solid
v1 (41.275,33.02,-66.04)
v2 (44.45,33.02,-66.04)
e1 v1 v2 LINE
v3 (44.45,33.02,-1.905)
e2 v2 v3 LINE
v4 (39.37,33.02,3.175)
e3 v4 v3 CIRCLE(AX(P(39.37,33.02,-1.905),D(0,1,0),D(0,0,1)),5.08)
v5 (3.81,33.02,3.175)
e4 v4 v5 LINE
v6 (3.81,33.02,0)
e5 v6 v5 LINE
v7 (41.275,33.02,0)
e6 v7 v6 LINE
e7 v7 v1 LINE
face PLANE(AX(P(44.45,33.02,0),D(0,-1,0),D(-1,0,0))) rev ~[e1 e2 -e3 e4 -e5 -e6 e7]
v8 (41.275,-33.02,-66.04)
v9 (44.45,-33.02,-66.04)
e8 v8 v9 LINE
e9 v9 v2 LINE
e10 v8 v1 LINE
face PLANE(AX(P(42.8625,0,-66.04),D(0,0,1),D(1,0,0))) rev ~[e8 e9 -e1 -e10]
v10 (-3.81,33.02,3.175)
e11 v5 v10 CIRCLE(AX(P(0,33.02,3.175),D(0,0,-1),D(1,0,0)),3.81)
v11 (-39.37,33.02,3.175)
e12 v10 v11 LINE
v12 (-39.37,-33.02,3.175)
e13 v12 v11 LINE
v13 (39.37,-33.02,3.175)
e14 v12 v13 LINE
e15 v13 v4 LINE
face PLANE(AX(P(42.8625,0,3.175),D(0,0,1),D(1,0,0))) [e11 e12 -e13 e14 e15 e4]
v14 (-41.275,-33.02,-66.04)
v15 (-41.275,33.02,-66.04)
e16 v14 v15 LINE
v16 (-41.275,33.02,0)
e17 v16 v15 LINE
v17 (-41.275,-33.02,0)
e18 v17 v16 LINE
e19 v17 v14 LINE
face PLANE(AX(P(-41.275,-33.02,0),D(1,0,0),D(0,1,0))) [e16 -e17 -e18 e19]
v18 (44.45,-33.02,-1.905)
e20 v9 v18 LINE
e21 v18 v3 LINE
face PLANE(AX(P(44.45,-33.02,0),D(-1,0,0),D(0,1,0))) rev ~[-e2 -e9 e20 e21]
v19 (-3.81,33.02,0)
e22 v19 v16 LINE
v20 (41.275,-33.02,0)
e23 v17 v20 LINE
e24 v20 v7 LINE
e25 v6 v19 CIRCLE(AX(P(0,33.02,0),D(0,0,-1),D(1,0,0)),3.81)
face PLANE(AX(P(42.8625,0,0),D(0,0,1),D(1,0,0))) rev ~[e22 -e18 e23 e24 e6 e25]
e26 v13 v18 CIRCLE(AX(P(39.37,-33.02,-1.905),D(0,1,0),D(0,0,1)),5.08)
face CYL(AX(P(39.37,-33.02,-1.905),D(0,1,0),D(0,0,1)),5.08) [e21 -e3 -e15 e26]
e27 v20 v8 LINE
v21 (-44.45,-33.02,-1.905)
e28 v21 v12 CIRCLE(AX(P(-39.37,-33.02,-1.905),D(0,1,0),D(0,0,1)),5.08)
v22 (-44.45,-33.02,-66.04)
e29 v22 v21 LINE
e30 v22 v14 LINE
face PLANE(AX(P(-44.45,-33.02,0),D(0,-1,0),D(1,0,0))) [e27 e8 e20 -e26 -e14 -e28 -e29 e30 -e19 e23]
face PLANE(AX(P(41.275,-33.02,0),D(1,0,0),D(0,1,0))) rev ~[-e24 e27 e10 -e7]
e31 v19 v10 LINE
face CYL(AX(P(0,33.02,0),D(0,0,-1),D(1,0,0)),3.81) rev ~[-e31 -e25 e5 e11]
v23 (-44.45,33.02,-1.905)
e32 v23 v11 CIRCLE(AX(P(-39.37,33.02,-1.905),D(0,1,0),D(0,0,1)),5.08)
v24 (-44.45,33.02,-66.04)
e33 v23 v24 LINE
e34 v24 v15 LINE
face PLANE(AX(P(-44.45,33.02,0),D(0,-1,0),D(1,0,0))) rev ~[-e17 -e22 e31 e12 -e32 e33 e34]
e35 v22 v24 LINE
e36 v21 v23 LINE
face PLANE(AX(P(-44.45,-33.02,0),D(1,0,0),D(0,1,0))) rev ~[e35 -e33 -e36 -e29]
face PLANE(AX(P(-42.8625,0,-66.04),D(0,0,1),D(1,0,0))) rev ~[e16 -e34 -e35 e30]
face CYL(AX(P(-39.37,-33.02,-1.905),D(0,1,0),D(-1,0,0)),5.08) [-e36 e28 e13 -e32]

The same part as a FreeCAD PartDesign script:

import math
import FreeCAD as App
import Part
import Sketcher
from FreeCAD import Vector
Q = App.Units.Quantity


def edges_at(feature, points):
    """Names of the edges that pass closest to the given points."""
    edges = feature.Shape.Edges
    near = lambda p: min(range(len(edges)), key=lambda i: edges[i].distToShape(Part.Vertex(*p))[0])
    return sorted({f"Edge{near(p) + 1}" for p in points})

doc = App.newDocument("Part")
body = doc.addObject("PartDesign::Body", "Body")

sketch1 = doc.addObject("Sketcher::SketchObject", "Sketch")
body.addObject(sketch1)
sketch1.AttachmentSupport = (doc.XY_Plane, [""])
sketch1.MapMode = "FlatFace"
sketch1.addGeometry([
    Part.LineSegment(Vector(44.5, -33, 0), Vector(44.5, 33, 0)),
    Part.LineSegment(Vector(44.5, 33, 0), Vector(3.8, 33, 0)),
    Part.ArcOfCircle(Part.Circle(Vector(0, 33, 0), Vector(0, 0, 1), 3.8), math.radians(180), math.radians(360)),
    Part.LineSegment(Vector(-3.8, 33, 0), Vector(-44.5, 33, 0)),
    Part.LineSegment(Vector(-44.5, 33, 0), Vector(-44.5, -33, 0)),
    Part.LineSegment(Vector(-44.5, -33, 0), Vector(44.5, -33, 0)),
], False)
sketch1.addConstraint([
    Sketcher.Constraint("Coincident", 0, 2, 1, 1),
    Sketcher.Constraint("Coincident", 1, 2, 2, 2),
    Sketcher.Constraint("Coincident", 2, 1, 3, 1),
    Sketcher.Constraint("Coincident", 3, 2, 4, 1),
    Sketcher.Constraint("Coincident", 4, 2, 5, 1),
    Sketcher.Constraint("Coincident", 5, 2, 0, 1),
    Sketcher.Constraint("Vertical", 0),
    Sketcher.Constraint("Horizontal", 1),
    Sketcher.Constraint("Horizontal", 3),
    Sketcher.Constraint("Vertical", 4),
    Sketcher.Constraint("Horizontal", 5),
    Sketcher.Constraint("Symmetric", 0, 2, 4, 2, -1, 1),
    Sketcher.Constraint("Symmetric", 1, 2, 2, 1, -2),
    Sketcher.Constraint("Horizontal", 2, 3, 0, 2),
    Sketcher.Constraint("Radius", 2, Q("0.15 in")),
    Sketcher.Constraint("DistanceX", 1, 2, 1, 1, Q("1.6 in")),
    Sketcher.Constraint("DistanceY", 0, 1, 0, 2, Q("2.6 in")),
])
pad1 = doc.addObject("PartDesign::Pad", "Pad")
body.addObject(pad1)
pad1.Profile = sketch1
pad1.Length = Q("0.125 in")

sketch2 = doc.addObject("Sketcher::SketchObject", "Sketch001")
body.addObject(sketch2)
sketch2.AttachmentSupport = (doc.XY_Plane, [""])
sketch2.MapMode = "FlatFace"
sketch2.addGeometry([
    Part.LineSegment(Vector(-44.5, 33, 0), Vector(-44.5, -33, 0)),
    Part.LineSegment(Vector(-44.5, -33, 0), Vector(-41.3, -33, 0)),
    Part.LineSegment(Vector(-41.3, -33, 0), Vector(-41.3, 33, 0)),
    Part.LineSegment(Vector(-41.3, 33, 0), Vector(-44.5, 33, 0)),
    Part.LineSegment(Vector(41.3, 33, 0), Vector(41.3, -33, 0)),
    Part.LineSegment(Vector(41.3, -33, 0), Vector(44.5, -33, 0)),
    Part.LineSegment(Vector(44.5, -33, 0), Vector(44.5, 33, 0)),
    Part.LineSegment(Vector(44.5, 33, 0), Vector(41.3, 33, 0)),
], False)
sketch2.addConstraint([
    Sketcher.Constraint("Coincident", 0, 2, 1, 1),
    Sketcher.Constraint("Coincident", 1, 2, 2, 1),
    Sketcher.Constraint("Coincident", 2, 2, 3, 1),
    Sketcher.Constraint("Coincident", 3, 2, 0, 1),
    Sketcher.Constraint("Coincident", 4, 2, 5, 1),
    Sketcher.Constraint("Coincident", 5, 2, 6, 1),
    Sketcher.Constraint("Coincident", 6, 2, 7, 1),
    Sketcher.Constraint("Coincident", 7, 2, 4, 1),
    Sketcher.Constraint("Vertical", 0),
    Sketcher.Constraint("Horizontal", 1),
    Sketcher.Constraint("Vertical", 2),
    Sketcher.Constraint("Horizontal", 3),
    Sketcher.Constraint("Vertical", 4),
    Sketcher.Constraint("Horizontal", 5),
    Sketcher.Constraint("Vertical", 6),
    Sketcher.Constraint("Horizontal", 7),
    Sketcher.Constraint("Symmetric", 2, 2, 4, 2, -1, 1),
    Sketcher.Constraint("Symmetric", 0, 2, 6, 2, -1, 1),
    Sketcher.Constraint("Horizontal", 1, 2, 4, 2),
    Sketcher.Constraint("DistanceY", 0, 2, 0, 1, Q("2.6 in")),
    Sketcher.Constraint("DistanceX", 0, 2, 5, 2, Q("3.5 in")),
    Sketcher.Constraint("DistanceX", 1, 1, 1, 2, Q("0.125 in")),
])
pad2 = doc.addObject("PartDesign::Pad", "Pad001")
body.addObject(pad2)
pad2.Profile = sketch2
pad2.Length = Q("2.6 in")
pad2.Reversed = True
doc.recompute()

fillet = doc.addObject("PartDesign::Fillet", "Fillet")
body.addObject(fillet)
fillet.Base = (pad2, edges_at(pad2, [(-44.45, 0, 3.175), (44.45, 0, 3.175)]))
fillet.Radius = Q("0.2 in")

doc.recompute()
